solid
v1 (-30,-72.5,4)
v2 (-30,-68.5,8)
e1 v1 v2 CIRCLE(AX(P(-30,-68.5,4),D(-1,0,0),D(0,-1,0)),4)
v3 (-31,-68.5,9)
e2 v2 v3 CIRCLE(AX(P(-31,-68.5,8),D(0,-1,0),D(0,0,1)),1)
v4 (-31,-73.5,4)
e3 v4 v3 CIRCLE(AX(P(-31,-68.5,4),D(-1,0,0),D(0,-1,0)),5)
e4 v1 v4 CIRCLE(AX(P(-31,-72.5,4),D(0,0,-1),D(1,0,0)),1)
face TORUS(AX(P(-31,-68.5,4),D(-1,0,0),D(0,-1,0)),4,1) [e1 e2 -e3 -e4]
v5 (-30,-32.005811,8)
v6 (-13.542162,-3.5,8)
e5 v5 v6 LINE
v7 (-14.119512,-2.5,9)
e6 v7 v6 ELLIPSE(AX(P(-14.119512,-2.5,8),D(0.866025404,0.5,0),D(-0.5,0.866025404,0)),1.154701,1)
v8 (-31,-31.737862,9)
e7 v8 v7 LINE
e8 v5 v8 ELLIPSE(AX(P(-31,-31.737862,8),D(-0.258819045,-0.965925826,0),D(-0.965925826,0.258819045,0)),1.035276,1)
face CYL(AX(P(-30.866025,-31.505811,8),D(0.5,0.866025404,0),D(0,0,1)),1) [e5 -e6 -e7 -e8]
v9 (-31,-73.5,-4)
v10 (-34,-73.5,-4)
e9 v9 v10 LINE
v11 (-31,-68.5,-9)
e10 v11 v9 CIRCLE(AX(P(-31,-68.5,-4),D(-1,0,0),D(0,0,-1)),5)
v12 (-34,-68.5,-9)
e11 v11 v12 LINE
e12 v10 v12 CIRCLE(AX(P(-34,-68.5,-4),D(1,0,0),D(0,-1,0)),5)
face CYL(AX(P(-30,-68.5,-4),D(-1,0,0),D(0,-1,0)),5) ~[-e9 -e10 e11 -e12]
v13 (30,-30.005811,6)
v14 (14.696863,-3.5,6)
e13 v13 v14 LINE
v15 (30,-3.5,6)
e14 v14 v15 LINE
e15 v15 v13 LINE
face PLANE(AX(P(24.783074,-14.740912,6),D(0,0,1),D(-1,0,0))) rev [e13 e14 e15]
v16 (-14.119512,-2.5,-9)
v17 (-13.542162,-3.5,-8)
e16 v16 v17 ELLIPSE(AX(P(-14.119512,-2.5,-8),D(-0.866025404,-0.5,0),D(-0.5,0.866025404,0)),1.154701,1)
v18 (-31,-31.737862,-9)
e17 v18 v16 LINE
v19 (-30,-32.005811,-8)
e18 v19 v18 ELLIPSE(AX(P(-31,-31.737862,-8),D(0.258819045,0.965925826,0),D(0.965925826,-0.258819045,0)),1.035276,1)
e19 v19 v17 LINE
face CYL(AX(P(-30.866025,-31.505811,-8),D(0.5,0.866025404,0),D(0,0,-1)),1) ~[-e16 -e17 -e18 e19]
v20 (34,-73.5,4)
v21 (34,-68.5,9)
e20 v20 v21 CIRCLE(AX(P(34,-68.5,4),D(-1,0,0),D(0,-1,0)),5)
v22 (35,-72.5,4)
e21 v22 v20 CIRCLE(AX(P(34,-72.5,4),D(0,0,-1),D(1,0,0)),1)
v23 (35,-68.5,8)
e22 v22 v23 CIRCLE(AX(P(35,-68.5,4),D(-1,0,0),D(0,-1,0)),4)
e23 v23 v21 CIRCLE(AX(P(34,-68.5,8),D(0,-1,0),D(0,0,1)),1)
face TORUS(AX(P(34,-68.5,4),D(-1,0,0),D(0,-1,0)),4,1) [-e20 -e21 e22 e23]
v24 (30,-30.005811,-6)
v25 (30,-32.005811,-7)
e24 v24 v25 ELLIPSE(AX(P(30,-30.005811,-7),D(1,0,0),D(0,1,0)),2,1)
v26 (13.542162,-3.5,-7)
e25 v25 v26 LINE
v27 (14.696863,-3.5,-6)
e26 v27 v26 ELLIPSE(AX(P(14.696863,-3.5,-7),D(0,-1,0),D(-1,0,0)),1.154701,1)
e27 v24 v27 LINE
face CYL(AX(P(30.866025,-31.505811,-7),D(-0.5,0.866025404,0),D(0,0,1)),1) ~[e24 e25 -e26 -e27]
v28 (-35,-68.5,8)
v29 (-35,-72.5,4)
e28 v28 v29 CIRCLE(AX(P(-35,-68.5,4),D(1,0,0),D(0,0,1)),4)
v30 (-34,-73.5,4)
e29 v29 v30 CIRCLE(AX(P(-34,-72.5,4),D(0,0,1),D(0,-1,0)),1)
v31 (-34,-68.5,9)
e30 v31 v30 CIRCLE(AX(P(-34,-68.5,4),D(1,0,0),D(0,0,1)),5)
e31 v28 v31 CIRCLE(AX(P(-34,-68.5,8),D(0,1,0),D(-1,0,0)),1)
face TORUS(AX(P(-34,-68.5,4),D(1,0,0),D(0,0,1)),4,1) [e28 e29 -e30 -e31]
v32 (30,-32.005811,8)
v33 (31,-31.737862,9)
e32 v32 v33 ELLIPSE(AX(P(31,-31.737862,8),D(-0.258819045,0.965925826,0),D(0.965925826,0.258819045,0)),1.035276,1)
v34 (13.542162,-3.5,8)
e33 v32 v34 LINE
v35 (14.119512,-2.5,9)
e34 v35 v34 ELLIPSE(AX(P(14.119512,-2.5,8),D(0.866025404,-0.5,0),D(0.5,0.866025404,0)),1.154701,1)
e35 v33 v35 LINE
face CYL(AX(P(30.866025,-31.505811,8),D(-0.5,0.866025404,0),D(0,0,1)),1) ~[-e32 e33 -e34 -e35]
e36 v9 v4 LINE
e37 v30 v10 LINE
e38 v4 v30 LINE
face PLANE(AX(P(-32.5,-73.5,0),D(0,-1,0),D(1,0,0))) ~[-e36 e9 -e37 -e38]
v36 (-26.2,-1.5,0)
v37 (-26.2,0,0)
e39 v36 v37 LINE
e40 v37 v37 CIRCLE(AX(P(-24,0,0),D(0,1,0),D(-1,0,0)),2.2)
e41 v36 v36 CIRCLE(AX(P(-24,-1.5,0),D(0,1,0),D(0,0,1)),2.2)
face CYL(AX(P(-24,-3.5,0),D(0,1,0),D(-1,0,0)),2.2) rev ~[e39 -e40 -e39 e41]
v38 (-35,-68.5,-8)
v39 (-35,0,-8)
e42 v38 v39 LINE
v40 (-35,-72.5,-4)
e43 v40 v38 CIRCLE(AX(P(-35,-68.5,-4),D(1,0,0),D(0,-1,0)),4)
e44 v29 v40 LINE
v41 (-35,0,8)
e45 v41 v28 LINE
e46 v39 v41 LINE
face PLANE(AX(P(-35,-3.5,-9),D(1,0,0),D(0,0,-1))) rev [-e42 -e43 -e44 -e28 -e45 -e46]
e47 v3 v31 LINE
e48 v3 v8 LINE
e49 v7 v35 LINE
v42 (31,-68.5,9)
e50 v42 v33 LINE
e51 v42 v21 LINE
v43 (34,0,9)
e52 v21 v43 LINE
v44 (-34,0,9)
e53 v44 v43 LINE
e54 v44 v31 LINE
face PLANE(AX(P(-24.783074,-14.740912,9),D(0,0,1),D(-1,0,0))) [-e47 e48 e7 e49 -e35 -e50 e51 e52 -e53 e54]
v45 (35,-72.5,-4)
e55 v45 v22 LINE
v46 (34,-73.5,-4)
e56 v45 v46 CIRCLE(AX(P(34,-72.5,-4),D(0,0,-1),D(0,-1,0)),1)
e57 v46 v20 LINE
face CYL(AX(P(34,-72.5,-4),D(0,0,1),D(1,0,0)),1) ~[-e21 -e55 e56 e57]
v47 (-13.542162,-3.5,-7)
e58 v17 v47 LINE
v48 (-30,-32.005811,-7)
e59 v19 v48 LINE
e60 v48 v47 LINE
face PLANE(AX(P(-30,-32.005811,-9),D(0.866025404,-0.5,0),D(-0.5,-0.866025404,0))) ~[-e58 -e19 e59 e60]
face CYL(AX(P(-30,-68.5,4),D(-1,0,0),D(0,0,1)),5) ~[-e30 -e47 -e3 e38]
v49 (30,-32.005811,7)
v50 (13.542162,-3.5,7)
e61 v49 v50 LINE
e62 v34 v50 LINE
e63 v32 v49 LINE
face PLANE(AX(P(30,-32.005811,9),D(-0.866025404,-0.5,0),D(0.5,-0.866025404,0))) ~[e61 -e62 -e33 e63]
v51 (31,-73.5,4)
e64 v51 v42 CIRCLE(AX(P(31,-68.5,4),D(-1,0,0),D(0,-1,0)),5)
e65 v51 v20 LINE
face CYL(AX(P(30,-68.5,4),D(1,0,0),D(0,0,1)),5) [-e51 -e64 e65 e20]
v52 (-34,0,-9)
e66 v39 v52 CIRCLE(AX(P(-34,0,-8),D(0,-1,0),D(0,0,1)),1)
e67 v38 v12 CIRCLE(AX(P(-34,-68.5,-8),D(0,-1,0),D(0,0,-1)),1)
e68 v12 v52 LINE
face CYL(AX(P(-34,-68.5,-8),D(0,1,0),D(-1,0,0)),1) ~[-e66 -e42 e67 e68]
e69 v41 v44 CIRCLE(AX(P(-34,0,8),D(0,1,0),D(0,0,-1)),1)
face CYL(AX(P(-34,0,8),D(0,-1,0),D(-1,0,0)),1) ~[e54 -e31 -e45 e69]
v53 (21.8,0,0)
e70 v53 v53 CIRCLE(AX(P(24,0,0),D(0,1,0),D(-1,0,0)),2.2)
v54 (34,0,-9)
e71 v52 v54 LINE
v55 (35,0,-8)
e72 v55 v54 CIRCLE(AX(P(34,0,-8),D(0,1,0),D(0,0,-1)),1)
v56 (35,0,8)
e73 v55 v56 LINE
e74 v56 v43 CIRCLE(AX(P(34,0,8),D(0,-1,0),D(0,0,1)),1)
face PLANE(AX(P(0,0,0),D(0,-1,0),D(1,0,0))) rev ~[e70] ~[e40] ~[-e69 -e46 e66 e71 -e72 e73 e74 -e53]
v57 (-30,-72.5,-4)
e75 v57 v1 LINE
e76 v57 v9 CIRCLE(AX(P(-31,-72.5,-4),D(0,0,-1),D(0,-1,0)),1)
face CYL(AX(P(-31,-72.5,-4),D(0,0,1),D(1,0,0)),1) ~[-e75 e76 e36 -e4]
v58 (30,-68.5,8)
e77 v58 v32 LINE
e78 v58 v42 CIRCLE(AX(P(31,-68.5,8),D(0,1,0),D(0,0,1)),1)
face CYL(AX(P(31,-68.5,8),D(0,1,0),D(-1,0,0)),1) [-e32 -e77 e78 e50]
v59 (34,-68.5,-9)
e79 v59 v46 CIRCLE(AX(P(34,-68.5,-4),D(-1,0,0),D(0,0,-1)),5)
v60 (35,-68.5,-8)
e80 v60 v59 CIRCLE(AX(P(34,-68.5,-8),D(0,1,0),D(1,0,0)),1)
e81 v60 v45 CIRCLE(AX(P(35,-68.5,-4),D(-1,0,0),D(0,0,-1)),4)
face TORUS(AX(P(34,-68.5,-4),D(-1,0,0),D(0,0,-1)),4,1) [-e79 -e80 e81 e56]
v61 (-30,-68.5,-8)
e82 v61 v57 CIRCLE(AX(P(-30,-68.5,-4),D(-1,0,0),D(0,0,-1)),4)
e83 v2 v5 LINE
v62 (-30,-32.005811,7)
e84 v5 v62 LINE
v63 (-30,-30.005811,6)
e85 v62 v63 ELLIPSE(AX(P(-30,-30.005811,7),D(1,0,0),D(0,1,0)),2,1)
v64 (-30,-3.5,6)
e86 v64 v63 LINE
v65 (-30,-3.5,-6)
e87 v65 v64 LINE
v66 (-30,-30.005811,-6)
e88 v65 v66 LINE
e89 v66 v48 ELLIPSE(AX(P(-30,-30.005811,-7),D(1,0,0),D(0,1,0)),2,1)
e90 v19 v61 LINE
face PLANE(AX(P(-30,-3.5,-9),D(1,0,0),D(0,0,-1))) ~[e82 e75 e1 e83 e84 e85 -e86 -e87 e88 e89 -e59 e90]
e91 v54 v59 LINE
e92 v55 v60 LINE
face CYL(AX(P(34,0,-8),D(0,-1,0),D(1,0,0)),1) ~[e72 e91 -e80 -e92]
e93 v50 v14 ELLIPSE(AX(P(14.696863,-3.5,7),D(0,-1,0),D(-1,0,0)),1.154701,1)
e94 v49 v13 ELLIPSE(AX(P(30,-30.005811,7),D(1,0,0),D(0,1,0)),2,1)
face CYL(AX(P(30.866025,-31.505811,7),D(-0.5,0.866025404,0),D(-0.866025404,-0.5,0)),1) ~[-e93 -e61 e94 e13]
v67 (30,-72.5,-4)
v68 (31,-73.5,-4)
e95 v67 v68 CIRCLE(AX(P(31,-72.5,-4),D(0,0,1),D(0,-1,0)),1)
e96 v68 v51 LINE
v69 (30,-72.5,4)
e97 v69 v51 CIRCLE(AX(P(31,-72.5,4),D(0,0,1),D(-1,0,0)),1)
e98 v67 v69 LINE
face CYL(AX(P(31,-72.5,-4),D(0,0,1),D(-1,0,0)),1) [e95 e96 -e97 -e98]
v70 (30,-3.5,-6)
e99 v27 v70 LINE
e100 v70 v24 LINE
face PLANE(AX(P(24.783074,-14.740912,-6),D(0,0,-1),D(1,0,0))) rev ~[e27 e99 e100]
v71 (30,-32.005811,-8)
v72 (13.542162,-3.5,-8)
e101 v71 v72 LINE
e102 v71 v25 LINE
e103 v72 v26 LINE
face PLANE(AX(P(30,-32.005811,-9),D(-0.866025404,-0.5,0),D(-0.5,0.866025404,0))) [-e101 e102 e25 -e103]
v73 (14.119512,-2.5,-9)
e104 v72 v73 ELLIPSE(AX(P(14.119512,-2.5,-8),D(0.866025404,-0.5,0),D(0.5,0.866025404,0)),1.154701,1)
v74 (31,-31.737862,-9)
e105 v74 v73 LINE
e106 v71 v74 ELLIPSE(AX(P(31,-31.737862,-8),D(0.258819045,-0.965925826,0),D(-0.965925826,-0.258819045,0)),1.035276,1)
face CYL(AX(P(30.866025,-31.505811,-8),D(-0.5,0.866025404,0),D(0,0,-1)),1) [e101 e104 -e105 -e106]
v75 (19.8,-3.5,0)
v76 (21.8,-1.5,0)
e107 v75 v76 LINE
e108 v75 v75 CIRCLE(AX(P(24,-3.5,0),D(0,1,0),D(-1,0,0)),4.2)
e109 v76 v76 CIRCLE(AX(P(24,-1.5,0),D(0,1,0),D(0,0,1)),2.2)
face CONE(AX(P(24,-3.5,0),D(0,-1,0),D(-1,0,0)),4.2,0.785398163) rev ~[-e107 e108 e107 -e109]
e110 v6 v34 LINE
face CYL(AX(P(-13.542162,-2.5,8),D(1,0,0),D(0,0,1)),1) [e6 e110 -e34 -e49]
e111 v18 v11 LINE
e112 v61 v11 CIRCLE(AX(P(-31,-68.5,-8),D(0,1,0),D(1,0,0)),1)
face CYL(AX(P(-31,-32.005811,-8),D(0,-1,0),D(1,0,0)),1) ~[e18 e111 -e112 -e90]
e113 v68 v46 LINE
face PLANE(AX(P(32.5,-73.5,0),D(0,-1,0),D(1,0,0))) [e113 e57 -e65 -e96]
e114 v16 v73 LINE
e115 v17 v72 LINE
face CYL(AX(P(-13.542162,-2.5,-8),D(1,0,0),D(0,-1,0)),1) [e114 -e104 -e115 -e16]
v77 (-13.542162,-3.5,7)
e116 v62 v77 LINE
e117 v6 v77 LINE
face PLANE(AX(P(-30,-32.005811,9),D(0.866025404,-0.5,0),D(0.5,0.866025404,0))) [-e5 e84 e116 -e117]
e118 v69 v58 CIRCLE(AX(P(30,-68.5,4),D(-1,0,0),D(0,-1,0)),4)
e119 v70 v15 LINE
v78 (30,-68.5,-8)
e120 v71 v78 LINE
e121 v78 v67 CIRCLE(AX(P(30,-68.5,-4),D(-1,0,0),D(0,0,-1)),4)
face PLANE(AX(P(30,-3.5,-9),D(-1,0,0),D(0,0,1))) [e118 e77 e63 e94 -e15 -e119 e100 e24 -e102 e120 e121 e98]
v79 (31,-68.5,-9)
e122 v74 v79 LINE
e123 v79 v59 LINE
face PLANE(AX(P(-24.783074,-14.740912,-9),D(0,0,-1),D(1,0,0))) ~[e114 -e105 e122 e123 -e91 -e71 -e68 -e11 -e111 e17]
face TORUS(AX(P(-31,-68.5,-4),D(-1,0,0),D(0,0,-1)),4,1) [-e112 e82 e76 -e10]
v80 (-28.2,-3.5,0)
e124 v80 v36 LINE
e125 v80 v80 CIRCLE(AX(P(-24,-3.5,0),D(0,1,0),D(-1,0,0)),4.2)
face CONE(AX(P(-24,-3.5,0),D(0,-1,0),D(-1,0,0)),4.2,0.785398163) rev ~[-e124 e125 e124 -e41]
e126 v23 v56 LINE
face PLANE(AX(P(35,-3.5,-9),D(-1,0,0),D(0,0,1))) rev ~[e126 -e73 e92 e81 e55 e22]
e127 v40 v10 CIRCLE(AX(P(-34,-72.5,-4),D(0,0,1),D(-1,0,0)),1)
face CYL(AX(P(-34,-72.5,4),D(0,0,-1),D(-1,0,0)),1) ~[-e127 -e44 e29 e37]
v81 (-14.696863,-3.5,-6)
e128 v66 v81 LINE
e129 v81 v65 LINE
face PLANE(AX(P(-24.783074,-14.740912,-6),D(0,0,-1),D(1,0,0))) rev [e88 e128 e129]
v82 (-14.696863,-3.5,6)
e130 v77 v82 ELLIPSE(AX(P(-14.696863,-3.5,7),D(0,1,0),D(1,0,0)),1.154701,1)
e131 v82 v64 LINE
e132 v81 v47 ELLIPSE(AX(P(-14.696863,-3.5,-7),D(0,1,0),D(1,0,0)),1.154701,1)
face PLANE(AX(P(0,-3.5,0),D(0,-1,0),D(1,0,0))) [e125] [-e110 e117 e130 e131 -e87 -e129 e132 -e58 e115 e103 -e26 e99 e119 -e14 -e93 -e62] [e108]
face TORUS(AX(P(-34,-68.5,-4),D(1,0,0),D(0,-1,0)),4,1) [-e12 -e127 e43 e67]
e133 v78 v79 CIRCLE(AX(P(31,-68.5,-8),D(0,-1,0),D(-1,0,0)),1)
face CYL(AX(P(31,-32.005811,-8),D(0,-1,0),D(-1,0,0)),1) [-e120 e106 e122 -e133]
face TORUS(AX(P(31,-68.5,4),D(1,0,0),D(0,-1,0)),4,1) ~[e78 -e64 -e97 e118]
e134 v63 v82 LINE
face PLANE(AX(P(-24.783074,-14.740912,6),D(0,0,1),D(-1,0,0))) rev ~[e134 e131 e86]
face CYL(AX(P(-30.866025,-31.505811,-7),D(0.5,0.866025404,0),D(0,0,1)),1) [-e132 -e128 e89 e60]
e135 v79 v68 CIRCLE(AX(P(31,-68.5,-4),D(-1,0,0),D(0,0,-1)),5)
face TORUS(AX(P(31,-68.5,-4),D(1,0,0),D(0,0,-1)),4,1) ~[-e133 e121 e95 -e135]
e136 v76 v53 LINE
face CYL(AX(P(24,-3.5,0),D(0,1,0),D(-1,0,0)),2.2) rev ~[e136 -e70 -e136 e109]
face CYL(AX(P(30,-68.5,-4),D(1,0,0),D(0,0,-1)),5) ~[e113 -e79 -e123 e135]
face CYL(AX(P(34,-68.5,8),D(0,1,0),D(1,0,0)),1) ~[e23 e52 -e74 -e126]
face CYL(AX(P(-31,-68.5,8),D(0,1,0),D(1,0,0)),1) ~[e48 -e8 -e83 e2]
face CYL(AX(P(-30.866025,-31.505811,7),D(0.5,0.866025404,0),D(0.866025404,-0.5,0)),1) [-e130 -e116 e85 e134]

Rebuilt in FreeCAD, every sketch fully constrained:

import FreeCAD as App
import Part
import Sketcher
from FreeCAD import Vector
Q = App.Units.Quantity


def edges_at(feature, points):
    """Names of the edges that pass closest to the given points."""
    edges = feature.Shape.Edges
    near = lambda p: min(range(len(edges)), key=lambda i: edges[i].distToShape(Part.Vertex(*p))[0])
    return sorted({f"Edge{near(p) + 1}" for p in points})

doc = App.newDocument("Part")
params = doc.addObject("Spreadsheet::Sheet", "Params")
for row, (alias, value) in enumerate([
    ("sketch1_width", "70 mm"),
    ("sketch1_height", "18 mm"),
    ("pad1_length", "3.5 mm"),
    ("sketch2_width", "5 mm"),
    ("sketch2_height", "18 mm"),
    ("pad2_length", "70 mm"),
    ("pad3_length", "3 mm"),
    ("fillet_radius", "5 mm"),
    ("fillet2_radius", "1 mm"),
    ("sketch4_diameter", "4.4 mm"),
    ("hole_diameter", "4.4 mm"),
    ("hole_csink_diameter", "8.4 mm"),
], start=1):
    params.set(f"A{row}", alias)
    params.set(f"B{row}", "=" + value)
    params.setAlias(f"B{row}", alias)

body = doc.addObject("PartDesign::Body", "Body")

# Sketch on XZ plane
sketch1 = doc.addObject("Sketcher::SketchObject", "Sketch")
body.addObject(sketch1)
sketch1.AttachmentSupport = (doc.XZ_Plane, [""])
sketch1.MapMode = "FlatFace"
sketch1.addGeometry([
    Part.LineSegment(Vector(-35, 9, 0), Vector(-35, -9, 0)),
    Part.LineSegment(Vector(-35, -9, 0), Vector(35, -9, 0)),
    Part.LineSegment(Vector(35, -9, 0), Vector(35, 9, 0)),
    Part.LineSegment(Vector(35, 9, 0), Vector(-35, 9, 0)),
], False)
sketch1.addConstraint([
    Sketcher.Constraint("Coincident", 0, 2, 1, 1),
    Sketcher.Constraint("Coincident", 1, 2, 2, 1),
    Sketcher.Constraint("Coincident", 2, 2, 3, 1),
    Sketcher.Constraint("Coincident", 3, 2, 0, 1),
    Sketcher.Constraint("Vertical", 0),
    Sketcher.Constraint("Horizontal", 1),
    Sketcher.Constraint("Vertical", 2),
    Sketcher.Constraint("Horizontal", 3),
    Sketcher.Constraint("Symmetric", 0, 2, 2, 2, -1, 1),
    Sketcher.Constraint("DistanceX", 1, 1, 1, 2, 70.0),
    Sketcher.Constraint("DistanceY", 0, 2, 0, 1, 18.0),
])
sketch1.setExpression("Constraints[9]", "Params.sketch1_width")
sketch1.setExpression("Constraints[10]", "Params.sketch1_height")
pad1 = doc.addObject("PartDesign::Pad", "Pad")
body.addObject(pad1)
pad1.Profile = sketch1
pad1.setExpression("Length", "Params.pad1_length")

# Sketch on XZ plane
sketch2 = doc.addObject("Sketcher::SketchObject", "Sketch001")
body.addObject(sketch2)
sketch2.AttachmentSupport = (doc.XZ_Plane, [""])
sketch2.MapMode = "FlatFace"
sketch2.AttachmentOffset = App.Placement(Vector(0, 0, 3.5), App.Rotation())
sketch2.addGeometry([
    Part.LineSegment(Vector(30, 9, 0), Vector(30, -9, 0)),
    Part.LineSegment(Vector(30, -9, 0), Vector(35, -9, 0)),
    Part.LineSegment(Vector(35, -9, 0), Vector(35, 9, 0)),
    Part.LineSegment(Vector(35, 9, 0), Vector(30, 9, 0)),
], False)
sketch2.addConstraint([
    Sketcher.Constraint("Coincident", 0, 2, 1, 1),
    Sketcher.Constraint("Coincident", 1, 2, 2, 1),
    Sketcher.Constraint("Coincident", 2, 2, 3, 1),
    Sketcher.Constraint("Coincident", 3, 2, 0, 1),
    Sketcher.Constraint("Vertical", 0),
    Sketcher.Constraint("Horizontal", 1),
    Sketcher.Constraint("Vertical", 2),
    Sketcher.Constraint("Horizontal", 3),
    Sketcher.Constraint("DistanceX", 1, 1, 1, 2, 5.0),
    Sketcher.Constraint("DistanceY", 0, 2, 0, 1, 18.0),
    Sketcher.Constraint("DistanceX", -1, 1, 0, 2, 30.0),
    Sketcher.Constraint("DistanceY", 0, 2, -1, 1, 9.0),
])
sketch2.setExpression("Constraints[8]", "Params.sketch2_width")
sketch2.setExpression("Constraints[9]", "Params.sketch2_height")
pad2 = doc.addObject("PartDesign::Pad", "Pad001")
body.addObject(pad2)
pad2.Profile = sketch2
pad2.setExpression("Length", "Params.pad2_length")

# Sketch on XY plane
sketch3 = doc.addObject("Sketcher::SketchObject", "Sketch002")
body.addObject(sketch3)
sketch3.AttachmentSupport = (doc.XY_Plane, [""])
sketch3.MapMode = "FlatFace"
sketch3.AttachmentOffset = App.Placement(Vector(0, 0, -9), App.Rotation())
sketch3.addGeometry([
    Part.LineSegment(Vector(13.542162, -3.5, 0), Vector(30, -3.5, 0)),
    Part.LineSegment(Vector(30, -3.5, 0), Vector(30, -32.005811, 0)),
    Part.LineSegment(Vector(30, -32.005811, 0), Vector(13.542162, -3.5, 0)),
], False)
sketch3.addConstraint([
    Sketcher.Constraint("Coincident", 0, 2, 1, 1),
    Sketcher.Constraint("Coincident", 1, 2, 2, 1),
    Sketcher.Constraint("Coincident", 2, 2, 0, 1),
    Sketcher.Constraint("Horizontal", 0),
    Sketcher.Constraint("Vertical", 1),
    Sketcher.Constraint("Angle", 2, Q("120 deg")),
    Sketcher.Constraint("DistanceX", -1, 1, 0, 2, 30.0),
    Sketcher.Constraint("DistanceY", 0, 2, -1, 1, 3.5),
    Sketcher.Constraint("DistanceY", 1, 2, 1, 1, 28.505811),
])
pad3 = doc.addObject("PartDesign::Pad", "Pad002")
body.addObject(pad3)
pad3.Profile = sketch3
pad3.setExpression("Length", "Params.pad3_length")
body2 = doc.addObject("PartDesign::Body", "Body001")
doc.recompute()

body2.BaseFeature = body
doc.recompute()

mirroring = doc.addObject("Part::Mirroring", "Mirroring")
mirroring.Source = body
mirroring.Base = Vector(0, 0, 0)
mirroring.Normal = Vector(0, 0, 1)
body3 = doc.addObject("PartDesign::Body", "Body002")
body3.BaseFeature = mirroring
boolean = doc.addObject("PartDesign::Boolean", "Boolean")
body2.addObject(boolean)
boolean.Type = "Fuse"
boolean.addObjects([body3])
doc.recompute()
body4 = doc.addObject("PartDesign::Body", "Body003")
doc.recompute()

body4.BaseFeature = body2
doc.recompute()

mirroring2 = doc.addObject("Part::Mirroring", "Mirroring001")
mirroring2.Source = body2
mirroring2.Base = Vector(0, 0, 0)
mirroring2.Normal = Vector(1, 0, 0)
body5 = doc.addObject("PartDesign::Body", "Body004")
body5.BaseFeature = mirroring2
boolean2 = doc.addObject("PartDesign::Boolean", "Boolean001")
body4.addObject(boolean2)
boolean2.Type = "Fuse"
boolean2.addObjects([body5])
doc.recompute()

fillet = doc.addObject("PartDesign::Fillet", "Fillet")
body4.addObject(fillet)
fillet.Base = (boolean2, edges_at(boolean2, [
    (-32.5, -73.5, -9),
    (-32.5, -73.5, 9),
    (32.5, -73.5, -9),
    (32.5, -73.5, 9),
]))
fillet.setExpression("Radius", "Params.fillet_radius")
doc.recompute()

fillet2 = doc.addObject("PartDesign::Fillet", "Fillet001")
body4.addObject(fillet2)
fillet2.Base = (fillet, edges_at(fillet, [
    (-35, -34.25, -9),
    (35, -34.25, -9),
    (-30, -50.253, -9),
    (30, -50.253, -9),
    (-21.771, -17.753, -9),
    (0, -3.5, -9),
    (21.771, -17.753, 9),
    (-21.771, -17.753, 9),
    (0, -3.5, 9),
    (21.771, -17.753, 6),
    (21.771, -17.753, -6),
    (-21.771, -17.753, 6),
    (-21.771, -17.753, -6),
    (21.771, -17.753, -9),
]))
fillet2.setExpression("Radius", "Params.fillet2_radius")

# Sketch on XZ plane
sketch4 = doc.addObject("Sketcher::SketchObject", "Sketch003")
body4.addObject(sketch4)
sketch4.AttachmentSupport = (doc.getObject("XZ_Plane003"), [""])
sketch4.MapMode = "FlatFace"
sketch4.AttachmentOffset = App.Placement(Vector(0, 0, 3.5), App.Rotation())
sketch4.addGeometry([
    Part.Circle(Vector(-24, 0, 0), Vector(0, 0, 1), 2.2),
    Part.Circle(Vector(24, 0, 0), Vector(0, 0, 1), 2.2),
], False)
sketch4.addConstraint([
    Sketcher.Constraint("Equal", 0, 1),
    Sketcher.Constraint("Symmetric", 0, 3, 1, 3, -1, 1),
    Sketcher.Constraint("PointOnObject", 0, 3, -1),
    Sketcher.Constraint("Diameter", 0, 4.4),
    Sketcher.Constraint("DistanceX", 0, 3, -1, 1, 24.0),
])
sketch4.setExpression("Constraints[3]", "Params.sketch4_diameter")
doc.recompute()
hole = doc.addObject("PartDesign::Hole", "Hole")
body4.addObject(hole)
hole.Profile = sketch4
hole.ThreadType = "None"
hole.setExpression("Diameter", "Params.hole_diameter")
hole.DepthType = "ThroughAll"
hole.HoleCutType = "Countersink"
hole.setExpression("HoleCutDiameter", "Params.hole_csink_diameter")
hole.HoleCutCountersinkAngle = 90
mirroring.Visibility = False
mirroring2.Visibility = False

doc.recompute()
